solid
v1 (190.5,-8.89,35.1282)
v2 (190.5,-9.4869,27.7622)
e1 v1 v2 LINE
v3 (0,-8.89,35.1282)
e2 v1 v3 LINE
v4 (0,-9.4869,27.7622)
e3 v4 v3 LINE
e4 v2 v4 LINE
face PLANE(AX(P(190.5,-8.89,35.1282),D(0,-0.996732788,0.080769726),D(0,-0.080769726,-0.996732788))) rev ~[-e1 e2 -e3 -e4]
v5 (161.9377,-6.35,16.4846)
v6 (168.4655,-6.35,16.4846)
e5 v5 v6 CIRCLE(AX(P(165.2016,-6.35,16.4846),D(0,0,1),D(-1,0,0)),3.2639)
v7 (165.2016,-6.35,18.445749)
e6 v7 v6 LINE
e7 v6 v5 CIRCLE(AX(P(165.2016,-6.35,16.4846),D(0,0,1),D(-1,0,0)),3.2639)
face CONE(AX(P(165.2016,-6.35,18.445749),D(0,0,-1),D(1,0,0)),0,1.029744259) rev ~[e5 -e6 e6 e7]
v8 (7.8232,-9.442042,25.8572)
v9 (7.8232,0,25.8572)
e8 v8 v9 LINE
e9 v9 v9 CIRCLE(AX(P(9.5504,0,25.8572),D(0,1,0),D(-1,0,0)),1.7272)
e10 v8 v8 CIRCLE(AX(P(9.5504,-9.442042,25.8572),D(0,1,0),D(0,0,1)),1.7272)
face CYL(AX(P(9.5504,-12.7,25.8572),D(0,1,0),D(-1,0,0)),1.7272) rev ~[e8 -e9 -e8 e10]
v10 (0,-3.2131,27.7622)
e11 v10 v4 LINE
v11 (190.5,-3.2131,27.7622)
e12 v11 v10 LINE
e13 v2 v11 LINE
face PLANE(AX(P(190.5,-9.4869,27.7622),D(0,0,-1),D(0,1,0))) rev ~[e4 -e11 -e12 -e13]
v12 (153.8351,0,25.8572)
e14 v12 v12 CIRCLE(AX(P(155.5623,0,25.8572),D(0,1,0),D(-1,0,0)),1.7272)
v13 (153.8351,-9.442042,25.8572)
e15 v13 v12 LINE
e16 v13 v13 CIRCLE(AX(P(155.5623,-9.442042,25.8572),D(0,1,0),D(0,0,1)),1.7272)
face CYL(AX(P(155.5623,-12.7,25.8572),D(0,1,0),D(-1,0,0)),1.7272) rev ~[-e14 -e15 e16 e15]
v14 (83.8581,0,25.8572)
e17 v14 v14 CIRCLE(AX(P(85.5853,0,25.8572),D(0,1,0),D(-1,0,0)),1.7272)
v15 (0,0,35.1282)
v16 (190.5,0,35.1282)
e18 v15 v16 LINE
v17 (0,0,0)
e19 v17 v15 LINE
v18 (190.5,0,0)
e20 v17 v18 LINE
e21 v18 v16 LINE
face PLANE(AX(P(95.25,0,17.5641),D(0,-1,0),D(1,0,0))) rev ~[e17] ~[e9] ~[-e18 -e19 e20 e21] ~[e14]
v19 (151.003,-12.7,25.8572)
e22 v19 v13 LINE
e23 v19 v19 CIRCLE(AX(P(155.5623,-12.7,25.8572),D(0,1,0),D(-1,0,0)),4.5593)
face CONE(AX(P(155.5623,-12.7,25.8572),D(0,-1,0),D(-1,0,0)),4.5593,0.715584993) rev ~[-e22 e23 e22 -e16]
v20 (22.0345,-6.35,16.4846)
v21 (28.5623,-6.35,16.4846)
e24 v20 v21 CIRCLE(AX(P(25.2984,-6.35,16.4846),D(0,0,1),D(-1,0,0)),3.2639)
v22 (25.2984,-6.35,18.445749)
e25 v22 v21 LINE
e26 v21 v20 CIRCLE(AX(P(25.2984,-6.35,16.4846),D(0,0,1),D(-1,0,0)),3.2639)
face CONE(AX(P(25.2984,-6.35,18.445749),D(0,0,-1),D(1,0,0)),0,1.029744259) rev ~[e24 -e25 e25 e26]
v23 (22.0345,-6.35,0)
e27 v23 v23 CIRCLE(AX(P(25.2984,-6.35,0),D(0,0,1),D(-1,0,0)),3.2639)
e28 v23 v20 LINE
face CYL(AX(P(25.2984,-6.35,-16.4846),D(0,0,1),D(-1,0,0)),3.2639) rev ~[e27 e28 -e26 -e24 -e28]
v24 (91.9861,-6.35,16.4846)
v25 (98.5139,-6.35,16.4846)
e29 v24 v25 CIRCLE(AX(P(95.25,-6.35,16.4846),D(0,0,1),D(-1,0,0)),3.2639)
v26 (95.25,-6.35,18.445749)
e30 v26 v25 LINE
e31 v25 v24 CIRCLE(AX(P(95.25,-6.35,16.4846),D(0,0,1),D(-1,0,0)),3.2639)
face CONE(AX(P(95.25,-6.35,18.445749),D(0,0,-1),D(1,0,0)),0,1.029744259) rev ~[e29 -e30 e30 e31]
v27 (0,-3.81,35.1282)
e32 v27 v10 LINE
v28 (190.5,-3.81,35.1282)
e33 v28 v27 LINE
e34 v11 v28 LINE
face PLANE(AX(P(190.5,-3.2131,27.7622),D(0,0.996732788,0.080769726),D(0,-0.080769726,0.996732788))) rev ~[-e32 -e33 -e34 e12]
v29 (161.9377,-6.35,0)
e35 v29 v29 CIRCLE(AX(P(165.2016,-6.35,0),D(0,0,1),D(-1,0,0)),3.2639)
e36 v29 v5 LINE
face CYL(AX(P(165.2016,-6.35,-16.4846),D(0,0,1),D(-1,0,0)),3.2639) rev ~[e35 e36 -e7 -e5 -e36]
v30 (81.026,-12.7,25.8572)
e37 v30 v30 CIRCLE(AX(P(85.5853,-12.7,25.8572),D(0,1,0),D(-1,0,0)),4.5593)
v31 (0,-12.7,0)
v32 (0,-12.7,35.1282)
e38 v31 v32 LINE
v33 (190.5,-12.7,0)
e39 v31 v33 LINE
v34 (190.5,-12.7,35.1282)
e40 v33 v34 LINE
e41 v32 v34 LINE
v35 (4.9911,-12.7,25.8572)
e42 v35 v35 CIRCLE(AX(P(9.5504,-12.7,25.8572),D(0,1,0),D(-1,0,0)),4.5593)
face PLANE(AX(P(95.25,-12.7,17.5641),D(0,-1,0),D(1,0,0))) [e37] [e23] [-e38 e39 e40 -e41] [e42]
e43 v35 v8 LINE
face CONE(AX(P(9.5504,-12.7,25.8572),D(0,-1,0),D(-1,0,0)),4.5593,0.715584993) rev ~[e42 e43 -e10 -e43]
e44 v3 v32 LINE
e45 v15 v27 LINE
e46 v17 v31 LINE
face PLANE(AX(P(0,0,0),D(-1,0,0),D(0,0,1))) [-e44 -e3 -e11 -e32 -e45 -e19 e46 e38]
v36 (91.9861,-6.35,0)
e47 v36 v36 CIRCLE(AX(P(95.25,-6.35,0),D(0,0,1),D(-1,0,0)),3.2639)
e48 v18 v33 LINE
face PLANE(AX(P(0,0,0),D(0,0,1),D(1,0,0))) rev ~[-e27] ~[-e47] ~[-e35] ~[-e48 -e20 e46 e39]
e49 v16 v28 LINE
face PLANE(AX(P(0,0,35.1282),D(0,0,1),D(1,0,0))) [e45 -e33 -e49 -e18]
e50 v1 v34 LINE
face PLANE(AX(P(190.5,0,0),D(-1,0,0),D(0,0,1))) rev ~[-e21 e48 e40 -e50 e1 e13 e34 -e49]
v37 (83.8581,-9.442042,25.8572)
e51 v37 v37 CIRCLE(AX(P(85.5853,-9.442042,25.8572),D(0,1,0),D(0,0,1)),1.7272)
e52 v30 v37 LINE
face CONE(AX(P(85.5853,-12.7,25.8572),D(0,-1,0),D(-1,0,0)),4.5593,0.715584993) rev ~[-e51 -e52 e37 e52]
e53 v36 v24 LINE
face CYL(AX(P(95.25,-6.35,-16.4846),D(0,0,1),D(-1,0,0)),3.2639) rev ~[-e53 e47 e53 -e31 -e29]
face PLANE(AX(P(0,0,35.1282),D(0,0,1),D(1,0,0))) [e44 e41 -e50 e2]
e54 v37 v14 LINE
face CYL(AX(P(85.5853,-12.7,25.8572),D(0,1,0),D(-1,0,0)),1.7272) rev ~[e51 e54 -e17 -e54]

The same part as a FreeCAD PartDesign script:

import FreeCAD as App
import Part
import Sketcher

V = App.Vector
Q = App.Units.Quantity

doc = App.newDocument("Part")
body = doc.addObject("PartDesign::Body", "Body")

# Sketch on XZ plane
sketch1 = body.newObject("Sketcher::SketchObject", "Sketch")
sketch1.AttachmentSupport = (doc.getObject("XZ_Plane"), [""])
sketch1.MapMode = "FlatFace"
sketch1.addGeometry([
    Part.LineSegment(V(0, 35, 0), V(0, 0, 0)),
    Part.LineSegment(V(0, 0, 0), V(190, 0, 0)),
    Part.LineSegment(V(190, 0, 0), V(190, 35, 0)),
    Part.LineSegment(V(190, 35, 0), V(0, 35, 0)),
], False)
sketch1.addConstraint([
    Sketcher.Constraint("Coincident", 0, 2, 1, 1),
    Sketcher.Constraint("Coincident", 1, 2, 2, 1),
    Sketcher.Constraint("Coincident", 2, 2, 3, 1),
    Sketcher.Constraint("Coincident", 3, 2, 0, 1),
    Sketcher.Constraint("Vertical", 0),
    Sketcher.Constraint("Horizontal", 1),
    Sketcher.Constraint("Vertical", 2),
    Sketcher.Constraint("Horizontal", 3),
    Sketcher.Constraint("Coincident", 0, 2, -1, 1),
    Sketcher.Constraint("DistanceX", 1, 1, 1, 2, Q("7.5 in")),
    Sketcher.Constraint("DistanceY", 0, 2, 0, 1, Q("1.383 in")),
])
pad1 = body.newObject("PartDesign::Pad", "Pad")
pad1.Profile = sketch1
pad1.Length = Q("0.5 in")

# Sketch on YZ plane
sketch2 = body.newObject("Sketcher::SketchObject", "Sketch001")
sketch2.AttachmentSupport = (doc.getObject("YZ_Plane"), [""])
sketch2.MapMode = "FlatFace"
sketch2.AttachmentOffset = App.Placement(V(0, 0, 7.5 * 25.4), App.Rotation())
sketch2.addGeometry([
    Part.LineSegment(V(-4, 35, 0), V(-9, 35, 0)),
    Part.LineSegment(V(-9, 35, 0), V(-9, 28, 0)),
    Part.LineSegment(V(-9, 28, 0), V(-3, 28, 0)),
    Part.LineSegment(V(-3, 28, 0), V(-4, 35, 0)),
], False)
sketch2.addConstraint([
    Sketcher.Constraint("Coincident", 0, 2, 1, 1),
    Sketcher.Constraint("Coincident", 1, 2, 2, 1),
    Sketcher.Constraint("Coincident", 2, 2, 3, 1),
    Sketcher.Constraint("Coincident", 3, 2, 0, 1),
    Sketcher.Constraint("Horizontal", 0),
    Sketcher.Constraint("Horizontal", 2),
    Sketcher.Constraint("Equal", 1, 3),
    Sketcher.Constraint("DistanceX", 0, 2, 0, 1, Q("0.2 in")),
    Sketcher.Constraint("DistanceX", 2, 1, 2, 2, Q("0.247 in")),
    Sketcher.Constraint("DistanceX", 0, 2, -1, 1, Q("0.35 in")),
    Sketcher.Constraint("DistanceY", 1, 2, 0, 2, Q("0.29 in")),
    Sketcher.Constraint("DistanceY", -1, 1, 0, 2, Q("1.383 in")),
])
pocket1 = body.newObject("PartDesign::Pocket", "Pocket")
pocket1.Profile = sketch2
pocket1.Type = "ThroughAll"

# Sketch on XZ plane
sketch3 = body.newObject("Sketcher::SketchObject", "Sketch002")
sketch3.AttachmentSupport = (doc.getObject("XZ_Plane"), [""])
sketch3.MapMode = "FlatFace"
sketch3.AttachmentOffset = App.Placement(V(0, 0, 0.5 * 25.4), App.Rotation())
sketch3.addGeometry([
    Part.Circle(V(9.6, 25.9, 0), V(0, 0, 1), 1.7),
    Part.Circle(V(85.6, 25.9, 0), V(0, 0, 1), 1.7),
    Part.Circle(V(155.6, 25.9, 0), V(0, 0, 1), 1.7),
], False)
sketch3.addConstraint([
    Sketcher.Constraint("Equal", 0, 1),
    Sketcher.Constraint("Equal", 1, 2),
    Sketcher.Constraint("Horizontal", 0, 3, 1, 3),
    Sketcher.Constraint("Horizontal", 1, 3, 2, 3),
    Sketcher.Constraint("Diameter", 0, Q("0.136 in")),
    Sketcher.Constraint("DistanceX", -1, 1, 0, 3, Q("0.376 in")),
    Sketcher.Constraint("DistanceY", -1, 1, 0, 3, Q("1.018 in")),
    Sketcher.Constraint("DistanceX", 1, 3, 2, 3, Q("2.755 in")),
    Sketcher.Constraint("DistanceX", -1, 1, 1, 3, Q("3.3695 in")),
])
doc.recompute()
hole = body.newObject("PartDesign::Hole", "Hole")
hole.Profile = sketch3
hole.ThreadType = "None"
hole.Diameter = Q("0.136 in")
hole.DepthType = "ThroughAll"
hole.HoleCutType = "Countersink"
hole.HoleCutDiameter = Q("0.359 in")
hole.HoleCutCountersinkAngle = 82

# Sketch on XY plane
sketch4 = body.newObject("Sketcher::SketchObject", "Sketch003")
sketch4.AttachmentSupport = (doc.getObject("XY_Plane"), [""])
sketch4.MapMode = "FlatFace"
sketch4.addGeometry([
    Part.Circle(V(25.3, -6.3, 0), V(0, 0, 1), 3.3),
    Part.Circle(V(95.2, -6.3, 0), V(0, 0, 1), 3.3),
    Part.Circle(V(165.2, -6.3, 0), V(0, 0, 1), 3.3),
], False)
sketch4.addConstraint([
    Sketcher.Constraint("Equal", 0, 1),
    Sketcher.Constraint("Equal", 1, 2),
    Sketcher.Constraint("Horizontal", 0, 3, 1, 3),
    Sketcher.Constraint("Horizontal", 1, 3, 2, 3),
    Sketcher.Constraint("Diameter", 0, Q("0.257 in")),
    Sketcher.Constraint("DistanceY", 0, 3, -1, 1, Q("0.25 in")),
    Sketcher.Constraint("DistanceX", -1, 1, 1, 3, Q("3.75 in")),
    Sketcher.Constraint("DistanceX", -1, 1, 0, 3, Q("0.996 in")),
    Sketcher.Constraint("DistanceX", -1, 1, 2, 3, Q("6.504 in")),
])
doc.recompute()
hole2 = body.newObject("PartDesign::Hole", "Hole001")
hole2.Profile = sketch4
hole2.ThreadType = "None"
hole2.Diameter = Q("0.257 in")
hole2.DepthType = "Dimension"
hole2.Depth = Q("0.649 in")
hole2.DrillPoint = "Angled"
hole2.DrillPointAngle = 118
hole2.Reversed = True

doc.recompute()
